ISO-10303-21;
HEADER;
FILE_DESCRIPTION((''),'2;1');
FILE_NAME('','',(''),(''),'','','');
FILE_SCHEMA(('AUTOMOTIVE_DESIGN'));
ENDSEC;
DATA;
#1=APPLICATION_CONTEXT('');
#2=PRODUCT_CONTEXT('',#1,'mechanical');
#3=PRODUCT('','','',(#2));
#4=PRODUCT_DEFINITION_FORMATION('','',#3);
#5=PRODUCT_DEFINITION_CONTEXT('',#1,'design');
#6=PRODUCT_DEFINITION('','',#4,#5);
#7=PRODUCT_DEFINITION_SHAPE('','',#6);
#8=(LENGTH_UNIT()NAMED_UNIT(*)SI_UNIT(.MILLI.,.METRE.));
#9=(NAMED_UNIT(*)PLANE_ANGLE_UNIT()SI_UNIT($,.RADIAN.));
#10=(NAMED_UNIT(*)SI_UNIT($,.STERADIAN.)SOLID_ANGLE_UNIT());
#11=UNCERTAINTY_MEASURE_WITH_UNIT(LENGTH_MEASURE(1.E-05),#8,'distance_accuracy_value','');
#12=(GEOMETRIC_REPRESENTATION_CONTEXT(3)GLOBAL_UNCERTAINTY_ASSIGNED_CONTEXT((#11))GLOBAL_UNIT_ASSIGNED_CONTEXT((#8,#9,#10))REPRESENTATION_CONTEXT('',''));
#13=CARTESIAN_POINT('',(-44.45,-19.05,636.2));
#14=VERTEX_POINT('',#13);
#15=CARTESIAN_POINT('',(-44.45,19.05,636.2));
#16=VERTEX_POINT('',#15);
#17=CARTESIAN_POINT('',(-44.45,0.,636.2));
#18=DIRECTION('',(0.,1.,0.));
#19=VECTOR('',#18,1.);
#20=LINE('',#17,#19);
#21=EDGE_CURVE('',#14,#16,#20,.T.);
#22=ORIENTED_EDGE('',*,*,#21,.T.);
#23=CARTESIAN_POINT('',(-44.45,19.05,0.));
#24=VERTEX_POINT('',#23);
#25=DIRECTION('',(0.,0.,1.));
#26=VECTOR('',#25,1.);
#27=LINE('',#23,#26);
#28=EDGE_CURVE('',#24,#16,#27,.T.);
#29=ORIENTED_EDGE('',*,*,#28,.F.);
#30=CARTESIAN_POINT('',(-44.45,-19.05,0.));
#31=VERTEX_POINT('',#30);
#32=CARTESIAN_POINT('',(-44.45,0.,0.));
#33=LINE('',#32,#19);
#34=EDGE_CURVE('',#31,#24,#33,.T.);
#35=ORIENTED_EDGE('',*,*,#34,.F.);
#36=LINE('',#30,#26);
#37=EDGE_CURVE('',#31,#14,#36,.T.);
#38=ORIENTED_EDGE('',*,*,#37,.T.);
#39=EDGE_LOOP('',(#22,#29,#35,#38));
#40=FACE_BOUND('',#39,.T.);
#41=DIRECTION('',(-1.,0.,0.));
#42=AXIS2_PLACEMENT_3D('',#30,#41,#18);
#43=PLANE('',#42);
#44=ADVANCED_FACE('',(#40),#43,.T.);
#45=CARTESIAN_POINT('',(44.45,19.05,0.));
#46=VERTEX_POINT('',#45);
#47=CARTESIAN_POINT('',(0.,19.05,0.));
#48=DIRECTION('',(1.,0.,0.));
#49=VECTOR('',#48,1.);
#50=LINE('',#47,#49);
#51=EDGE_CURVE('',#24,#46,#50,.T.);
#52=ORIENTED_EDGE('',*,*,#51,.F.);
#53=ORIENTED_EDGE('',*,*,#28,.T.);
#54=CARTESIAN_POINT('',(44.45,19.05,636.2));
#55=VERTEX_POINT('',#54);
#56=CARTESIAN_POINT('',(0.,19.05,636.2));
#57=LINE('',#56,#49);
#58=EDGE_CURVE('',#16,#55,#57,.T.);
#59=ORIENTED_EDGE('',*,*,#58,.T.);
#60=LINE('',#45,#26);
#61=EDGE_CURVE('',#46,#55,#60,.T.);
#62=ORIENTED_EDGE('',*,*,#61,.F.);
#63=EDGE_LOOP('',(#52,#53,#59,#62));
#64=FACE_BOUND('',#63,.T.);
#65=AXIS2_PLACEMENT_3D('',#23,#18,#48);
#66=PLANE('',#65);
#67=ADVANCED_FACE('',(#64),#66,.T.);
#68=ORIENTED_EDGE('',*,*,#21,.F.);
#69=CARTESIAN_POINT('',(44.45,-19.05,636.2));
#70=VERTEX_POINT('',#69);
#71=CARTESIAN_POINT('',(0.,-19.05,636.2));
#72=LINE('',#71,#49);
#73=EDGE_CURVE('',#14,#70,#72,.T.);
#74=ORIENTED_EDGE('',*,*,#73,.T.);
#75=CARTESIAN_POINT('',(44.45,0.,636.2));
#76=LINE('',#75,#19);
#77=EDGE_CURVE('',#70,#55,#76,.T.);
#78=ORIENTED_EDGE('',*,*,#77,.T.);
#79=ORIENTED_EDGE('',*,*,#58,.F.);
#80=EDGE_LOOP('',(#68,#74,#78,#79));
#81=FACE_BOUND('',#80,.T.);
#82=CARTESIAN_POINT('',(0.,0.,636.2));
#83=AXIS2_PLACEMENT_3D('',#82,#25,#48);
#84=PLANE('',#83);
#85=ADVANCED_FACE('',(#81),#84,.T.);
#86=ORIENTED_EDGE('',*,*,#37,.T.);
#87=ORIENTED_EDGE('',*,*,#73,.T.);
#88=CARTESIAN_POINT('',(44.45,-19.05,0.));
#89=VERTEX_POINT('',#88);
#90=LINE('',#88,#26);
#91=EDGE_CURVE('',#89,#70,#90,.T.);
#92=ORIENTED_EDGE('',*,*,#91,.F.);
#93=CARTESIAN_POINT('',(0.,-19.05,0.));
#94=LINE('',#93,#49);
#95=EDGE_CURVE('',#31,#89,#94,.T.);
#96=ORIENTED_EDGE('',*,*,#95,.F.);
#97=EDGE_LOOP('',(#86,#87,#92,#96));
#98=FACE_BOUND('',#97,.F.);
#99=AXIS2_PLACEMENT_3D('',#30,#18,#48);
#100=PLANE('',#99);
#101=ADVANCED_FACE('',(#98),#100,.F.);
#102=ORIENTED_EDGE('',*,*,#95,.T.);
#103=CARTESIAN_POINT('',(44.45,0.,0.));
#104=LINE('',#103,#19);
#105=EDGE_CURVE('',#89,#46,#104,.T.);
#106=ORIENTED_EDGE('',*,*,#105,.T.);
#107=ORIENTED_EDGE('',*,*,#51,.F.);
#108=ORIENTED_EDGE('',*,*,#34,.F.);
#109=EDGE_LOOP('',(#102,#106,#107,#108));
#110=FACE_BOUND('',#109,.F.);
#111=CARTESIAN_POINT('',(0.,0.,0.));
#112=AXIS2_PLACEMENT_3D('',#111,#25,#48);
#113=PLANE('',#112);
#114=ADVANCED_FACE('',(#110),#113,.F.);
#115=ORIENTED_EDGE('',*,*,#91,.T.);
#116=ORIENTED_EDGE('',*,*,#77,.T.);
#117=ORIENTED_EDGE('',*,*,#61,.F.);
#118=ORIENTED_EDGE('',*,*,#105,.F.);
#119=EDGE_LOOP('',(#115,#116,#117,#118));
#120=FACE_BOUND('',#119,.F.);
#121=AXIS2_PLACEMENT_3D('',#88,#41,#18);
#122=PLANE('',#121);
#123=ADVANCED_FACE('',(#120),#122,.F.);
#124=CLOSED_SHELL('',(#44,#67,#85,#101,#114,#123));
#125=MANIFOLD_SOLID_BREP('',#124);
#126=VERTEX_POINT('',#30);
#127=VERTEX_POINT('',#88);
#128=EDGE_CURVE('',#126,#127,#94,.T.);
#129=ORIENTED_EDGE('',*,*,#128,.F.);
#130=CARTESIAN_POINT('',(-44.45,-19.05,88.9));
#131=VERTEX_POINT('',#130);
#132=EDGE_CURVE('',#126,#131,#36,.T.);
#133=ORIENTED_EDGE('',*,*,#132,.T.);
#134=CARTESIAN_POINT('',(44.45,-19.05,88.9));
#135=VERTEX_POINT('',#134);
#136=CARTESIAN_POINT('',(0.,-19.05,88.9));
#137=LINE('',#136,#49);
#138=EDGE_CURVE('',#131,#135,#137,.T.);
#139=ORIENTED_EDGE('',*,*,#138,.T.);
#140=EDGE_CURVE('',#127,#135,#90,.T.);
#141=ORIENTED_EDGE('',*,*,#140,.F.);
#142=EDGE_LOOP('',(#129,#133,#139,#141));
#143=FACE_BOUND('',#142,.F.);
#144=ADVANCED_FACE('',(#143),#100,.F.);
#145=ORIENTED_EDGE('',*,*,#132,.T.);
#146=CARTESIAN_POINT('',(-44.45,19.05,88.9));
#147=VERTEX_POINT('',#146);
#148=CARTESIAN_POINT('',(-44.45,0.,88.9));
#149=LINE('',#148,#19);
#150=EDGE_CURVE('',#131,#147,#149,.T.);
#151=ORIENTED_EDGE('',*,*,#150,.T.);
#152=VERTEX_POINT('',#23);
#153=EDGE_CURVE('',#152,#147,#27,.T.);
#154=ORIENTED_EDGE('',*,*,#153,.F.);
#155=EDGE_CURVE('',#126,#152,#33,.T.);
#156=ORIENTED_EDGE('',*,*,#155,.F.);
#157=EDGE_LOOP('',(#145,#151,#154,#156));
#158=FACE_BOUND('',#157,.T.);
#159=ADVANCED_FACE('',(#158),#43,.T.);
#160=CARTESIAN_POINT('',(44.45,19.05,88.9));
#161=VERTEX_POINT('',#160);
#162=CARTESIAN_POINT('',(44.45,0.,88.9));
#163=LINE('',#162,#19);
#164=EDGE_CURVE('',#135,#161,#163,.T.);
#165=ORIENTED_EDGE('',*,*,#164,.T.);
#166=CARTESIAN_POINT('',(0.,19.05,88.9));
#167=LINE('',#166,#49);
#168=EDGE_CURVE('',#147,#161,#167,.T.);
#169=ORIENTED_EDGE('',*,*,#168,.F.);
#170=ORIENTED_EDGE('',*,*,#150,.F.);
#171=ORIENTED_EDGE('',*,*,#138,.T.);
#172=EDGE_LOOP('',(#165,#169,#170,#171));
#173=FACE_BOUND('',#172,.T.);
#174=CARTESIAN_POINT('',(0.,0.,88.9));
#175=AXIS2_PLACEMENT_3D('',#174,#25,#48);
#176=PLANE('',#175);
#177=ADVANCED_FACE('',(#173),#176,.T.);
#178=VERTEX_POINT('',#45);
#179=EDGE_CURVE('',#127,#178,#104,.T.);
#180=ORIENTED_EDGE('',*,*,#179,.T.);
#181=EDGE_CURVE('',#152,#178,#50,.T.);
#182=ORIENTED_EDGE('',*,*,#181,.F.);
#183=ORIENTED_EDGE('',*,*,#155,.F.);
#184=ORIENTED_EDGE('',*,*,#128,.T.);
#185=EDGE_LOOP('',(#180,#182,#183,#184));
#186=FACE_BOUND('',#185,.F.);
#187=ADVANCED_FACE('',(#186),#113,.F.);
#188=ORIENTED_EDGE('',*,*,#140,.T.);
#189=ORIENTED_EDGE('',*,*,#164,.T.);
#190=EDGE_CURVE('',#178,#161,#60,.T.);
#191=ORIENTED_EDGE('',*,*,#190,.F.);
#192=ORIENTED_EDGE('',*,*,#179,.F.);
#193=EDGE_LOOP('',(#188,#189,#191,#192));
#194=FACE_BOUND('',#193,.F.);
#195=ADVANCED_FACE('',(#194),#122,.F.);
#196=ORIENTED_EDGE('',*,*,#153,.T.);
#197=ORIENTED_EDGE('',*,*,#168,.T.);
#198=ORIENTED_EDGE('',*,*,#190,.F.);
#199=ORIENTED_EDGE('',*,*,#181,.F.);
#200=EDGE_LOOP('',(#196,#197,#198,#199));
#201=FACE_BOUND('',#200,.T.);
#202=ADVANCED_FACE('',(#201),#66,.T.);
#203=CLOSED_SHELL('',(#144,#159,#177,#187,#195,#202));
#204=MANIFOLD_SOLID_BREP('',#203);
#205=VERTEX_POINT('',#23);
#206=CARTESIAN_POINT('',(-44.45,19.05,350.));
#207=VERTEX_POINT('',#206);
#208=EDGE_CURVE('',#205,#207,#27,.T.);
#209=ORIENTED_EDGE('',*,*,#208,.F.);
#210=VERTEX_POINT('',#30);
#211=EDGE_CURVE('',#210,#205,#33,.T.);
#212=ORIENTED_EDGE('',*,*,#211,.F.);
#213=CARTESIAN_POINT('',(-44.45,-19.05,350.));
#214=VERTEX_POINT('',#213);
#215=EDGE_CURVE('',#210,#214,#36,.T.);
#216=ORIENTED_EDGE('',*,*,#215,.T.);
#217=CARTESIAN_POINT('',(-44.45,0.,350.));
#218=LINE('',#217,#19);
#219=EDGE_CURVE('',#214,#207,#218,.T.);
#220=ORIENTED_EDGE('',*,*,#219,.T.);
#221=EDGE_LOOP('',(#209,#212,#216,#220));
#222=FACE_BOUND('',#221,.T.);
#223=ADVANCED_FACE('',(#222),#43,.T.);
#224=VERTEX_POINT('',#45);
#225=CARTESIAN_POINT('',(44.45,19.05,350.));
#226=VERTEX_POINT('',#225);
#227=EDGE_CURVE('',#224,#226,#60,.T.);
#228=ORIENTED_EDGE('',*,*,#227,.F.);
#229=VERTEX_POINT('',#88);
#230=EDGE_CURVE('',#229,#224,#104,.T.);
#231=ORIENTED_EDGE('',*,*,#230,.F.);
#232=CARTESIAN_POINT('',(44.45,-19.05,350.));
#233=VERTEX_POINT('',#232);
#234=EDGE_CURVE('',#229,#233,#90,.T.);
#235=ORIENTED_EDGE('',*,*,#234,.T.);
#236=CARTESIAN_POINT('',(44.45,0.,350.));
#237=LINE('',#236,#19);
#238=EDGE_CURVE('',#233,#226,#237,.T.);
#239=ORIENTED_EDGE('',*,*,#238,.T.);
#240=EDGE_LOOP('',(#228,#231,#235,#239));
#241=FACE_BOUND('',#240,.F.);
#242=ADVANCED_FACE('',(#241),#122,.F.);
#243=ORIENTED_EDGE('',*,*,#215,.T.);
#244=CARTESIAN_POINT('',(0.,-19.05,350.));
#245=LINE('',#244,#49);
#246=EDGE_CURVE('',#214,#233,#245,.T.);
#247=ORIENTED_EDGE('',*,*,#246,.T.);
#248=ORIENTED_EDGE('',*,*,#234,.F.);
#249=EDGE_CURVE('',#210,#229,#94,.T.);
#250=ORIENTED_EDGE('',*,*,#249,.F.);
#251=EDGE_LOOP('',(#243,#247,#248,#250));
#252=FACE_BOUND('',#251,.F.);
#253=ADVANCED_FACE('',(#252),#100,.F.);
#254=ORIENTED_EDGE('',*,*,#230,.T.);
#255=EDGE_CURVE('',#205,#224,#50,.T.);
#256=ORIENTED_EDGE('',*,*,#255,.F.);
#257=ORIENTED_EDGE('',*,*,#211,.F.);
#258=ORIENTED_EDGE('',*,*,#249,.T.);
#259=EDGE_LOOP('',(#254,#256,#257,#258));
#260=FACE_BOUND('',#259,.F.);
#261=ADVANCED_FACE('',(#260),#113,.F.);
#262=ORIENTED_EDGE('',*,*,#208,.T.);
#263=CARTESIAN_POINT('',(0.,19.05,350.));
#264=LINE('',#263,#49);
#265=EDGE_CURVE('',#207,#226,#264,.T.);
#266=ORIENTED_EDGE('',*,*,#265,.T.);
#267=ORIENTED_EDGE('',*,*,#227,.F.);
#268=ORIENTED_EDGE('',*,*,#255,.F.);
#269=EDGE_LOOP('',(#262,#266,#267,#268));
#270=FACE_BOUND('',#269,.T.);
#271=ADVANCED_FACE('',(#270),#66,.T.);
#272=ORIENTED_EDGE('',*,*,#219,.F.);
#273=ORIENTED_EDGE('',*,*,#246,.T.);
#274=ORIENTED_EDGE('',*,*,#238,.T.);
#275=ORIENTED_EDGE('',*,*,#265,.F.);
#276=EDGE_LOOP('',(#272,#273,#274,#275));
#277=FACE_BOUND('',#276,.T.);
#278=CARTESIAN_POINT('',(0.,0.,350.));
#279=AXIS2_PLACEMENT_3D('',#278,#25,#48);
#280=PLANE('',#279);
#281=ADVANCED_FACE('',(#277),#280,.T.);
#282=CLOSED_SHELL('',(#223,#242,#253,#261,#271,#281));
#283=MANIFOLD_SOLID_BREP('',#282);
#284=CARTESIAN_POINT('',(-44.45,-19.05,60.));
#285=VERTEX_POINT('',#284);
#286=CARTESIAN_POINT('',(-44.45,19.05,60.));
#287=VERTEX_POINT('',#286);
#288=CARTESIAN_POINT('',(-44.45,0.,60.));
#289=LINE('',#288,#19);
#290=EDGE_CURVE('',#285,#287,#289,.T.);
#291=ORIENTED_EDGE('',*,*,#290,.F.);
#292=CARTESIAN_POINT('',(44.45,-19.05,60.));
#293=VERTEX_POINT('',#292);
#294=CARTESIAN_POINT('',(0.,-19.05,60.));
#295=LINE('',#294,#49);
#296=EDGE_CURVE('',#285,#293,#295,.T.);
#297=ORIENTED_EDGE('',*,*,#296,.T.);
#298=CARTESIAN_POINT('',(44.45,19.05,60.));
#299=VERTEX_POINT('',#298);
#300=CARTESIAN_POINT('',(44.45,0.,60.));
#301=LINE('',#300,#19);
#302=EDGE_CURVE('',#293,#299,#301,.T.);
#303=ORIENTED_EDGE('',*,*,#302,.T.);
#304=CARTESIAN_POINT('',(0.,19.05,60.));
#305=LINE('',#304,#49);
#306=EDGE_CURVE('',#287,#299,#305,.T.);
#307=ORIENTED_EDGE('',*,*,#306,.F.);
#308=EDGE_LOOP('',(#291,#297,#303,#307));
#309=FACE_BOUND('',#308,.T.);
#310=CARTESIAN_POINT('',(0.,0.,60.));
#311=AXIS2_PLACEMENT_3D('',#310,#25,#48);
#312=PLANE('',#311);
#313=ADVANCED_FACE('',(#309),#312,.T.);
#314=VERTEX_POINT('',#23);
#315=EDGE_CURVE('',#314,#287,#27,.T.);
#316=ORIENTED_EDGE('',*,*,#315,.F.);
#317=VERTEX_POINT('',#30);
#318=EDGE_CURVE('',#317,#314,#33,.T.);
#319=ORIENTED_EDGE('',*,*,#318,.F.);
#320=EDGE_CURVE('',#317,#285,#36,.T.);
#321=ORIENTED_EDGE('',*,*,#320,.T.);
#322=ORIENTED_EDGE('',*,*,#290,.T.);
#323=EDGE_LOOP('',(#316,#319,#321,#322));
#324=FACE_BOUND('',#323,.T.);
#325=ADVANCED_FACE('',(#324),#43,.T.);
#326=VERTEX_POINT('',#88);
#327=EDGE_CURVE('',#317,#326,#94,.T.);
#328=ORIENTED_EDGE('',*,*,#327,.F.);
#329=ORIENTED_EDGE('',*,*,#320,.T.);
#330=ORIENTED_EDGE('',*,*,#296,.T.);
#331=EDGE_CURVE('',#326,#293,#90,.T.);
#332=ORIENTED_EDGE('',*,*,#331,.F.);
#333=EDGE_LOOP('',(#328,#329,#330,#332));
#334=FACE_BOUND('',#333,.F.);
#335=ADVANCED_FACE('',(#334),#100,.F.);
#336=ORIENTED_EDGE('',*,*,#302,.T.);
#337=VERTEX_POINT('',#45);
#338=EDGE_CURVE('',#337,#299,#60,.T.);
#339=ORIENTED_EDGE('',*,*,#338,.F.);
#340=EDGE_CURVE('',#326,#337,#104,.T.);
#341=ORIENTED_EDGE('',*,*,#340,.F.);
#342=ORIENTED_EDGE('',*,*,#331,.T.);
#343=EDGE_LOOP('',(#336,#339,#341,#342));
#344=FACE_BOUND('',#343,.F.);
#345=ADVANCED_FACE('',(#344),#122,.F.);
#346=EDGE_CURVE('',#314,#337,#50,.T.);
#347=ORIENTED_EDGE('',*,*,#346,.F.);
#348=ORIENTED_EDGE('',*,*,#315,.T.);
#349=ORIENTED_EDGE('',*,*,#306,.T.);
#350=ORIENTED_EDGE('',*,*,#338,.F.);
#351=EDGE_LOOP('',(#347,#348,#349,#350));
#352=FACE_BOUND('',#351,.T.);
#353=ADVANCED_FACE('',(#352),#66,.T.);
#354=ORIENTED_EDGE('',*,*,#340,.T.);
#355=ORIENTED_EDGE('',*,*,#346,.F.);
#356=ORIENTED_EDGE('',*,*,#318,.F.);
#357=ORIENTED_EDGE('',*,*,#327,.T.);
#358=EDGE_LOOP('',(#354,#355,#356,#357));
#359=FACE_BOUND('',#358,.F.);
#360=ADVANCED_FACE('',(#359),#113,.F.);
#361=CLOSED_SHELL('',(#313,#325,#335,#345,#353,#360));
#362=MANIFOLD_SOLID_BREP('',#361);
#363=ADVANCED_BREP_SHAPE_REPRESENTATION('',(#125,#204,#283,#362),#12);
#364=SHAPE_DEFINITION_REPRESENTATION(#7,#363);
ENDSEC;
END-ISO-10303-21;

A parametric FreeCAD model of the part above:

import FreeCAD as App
import Part
import Sketcher

V = App.Vector

doc = App.newDocument("Part")
body = doc.addObject("PartDesign::Body", "Body")

sketch1 = body.newObject("Sketcher::SketchObject", "Sketch")
sketch1.AttachmentSupport = (doc.getObject("XY_Plane"), [""])
sketch1.MapMode = "FlatFace"
sketch1.addGeometry(Part.LineSegment(V(-44.45, 19.05, 0), V(-44.45, -19.05, 0)), False)
sketch1.addGeometry(Part.LineSegment(V(-44.45, -19.05, 0), V(44.45, -19.05, 0)), False)
sketch1.addGeometry(Part.LineSegment(V(44.45, -19.05, 0), V(44.45, 19.05, 0)), False)
sketch1.addGeometry(Part.LineSegment(V(44.45, 19.05, 0), V(-44.45, 19.05, 0)), False)
sketch1.addConstraint(Sketcher.Constraint("Coincident", 0, 2, 1, 1))
sketch1.addConstraint(Sketcher.Constraint("Coincident", 1, 2, 2, 1))
sketch1.addConstraint(Sketcher.Constraint("Coincident", 2, 2, 3, 1))
sketch1.addConstraint(Sketcher.Constraint("Coincident", 3, 2, 0, 1))
sketch1.addConstraint(Sketcher.Constraint("Vertical", 0))
sketch1.addConstraint(Sketcher.Constraint("Horizontal", 1))
sketch1.addConstraint(Sketcher.Constraint("Vertical", 2))
sketch1.addConstraint(Sketcher.Constraint("Horizontal", 3))
sketch1.addConstraint(Sketcher.Constraint("Symmetric", 0, 2, 2, 2, -1, 1))
sketch1.addConstraint(Sketcher.Constraint("DistanceX", 1, 1, 1, 2, 88.9))
sketch1.addConstraint(Sketcher.Constraint("DistanceY", 0, 2, 0, 1, 38.1))
pad1 = body.newObject("PartDesign::Pad", "Pad")
pad1.Profile = sketch1
pad1.Length = 350
body2 = doc.addObject("PartDesign::Body", "Body001")

sketch2 = body2.newObject("Sketcher::SketchObject", "Sketch001")
sketch2.AttachmentSupport = (doc.getObject("XY_Plane001"), [""])
sketch2.MapMode = "FlatFace"
sketch2.addGeometry(Part.LineSegment(V(-44.45, 19.05, 0), V(-44.45, -19.05, 0)), False)
sketch2.addGeometry(Part.LineSegment(V(-44.45, -19.05, 0), V(44.45, -19.05, 0)), False)
sketch2.addGeometry(Part.LineSegment(V(44.45, -19.05, 0), V(44.45, 19.05, 0)), False)
sketch2.addGeometry(Part.LineSegment(V(44.45, 19.05, 0), V(-44.45, 19.05, 0)), False)
sketch2.addConstraint(Sketcher.Constraint("Coincident", 0, 2, 1, 1))
sketch2.addConstraint(Sketcher.Constraint("Coincident", 1, 2, 2, 1))
sketch2.addConstraint(Sketcher.Constraint("Coincident", 2, 2, 3, 1))
sketch2.addConstraint(Sketcher.Constraint("Coincident", 3, 2, 0, 1))
sketch2.addConstraint(Sketcher.Constraint("Vertical", 0))
sketch2.addConstraint(Sketcher.Constraint("Horizontal", 1))
sketch2.addConstraint(Sketcher.Constraint("Vertical", 2))
sketch2.addConstraint(Sketcher.Constraint("Horizontal", 3))
sketch2.addConstraint(Sketcher.Constraint("Symmetric", 0, 2, 2, 2, -1, 1))
sketch2.addConstraint(Sketcher.Constraint("DistanceX", 1, 1, 1, 2, 88.9))
sketch2.addConstraint(Sketcher.Constraint("DistanceY", 0, 2, 0, 1, 38.1))
pad2 = body2.newObject("PartDesign::Pad", "Pad001")
pad2.Profile = sketch2
pad2.Length = 636.2
body3 = doc.addObject("PartDesign::Body", "Body002")

sketch3 = body3.newObject("Sketcher::SketchObject", "Sketch002")
sketch3.AttachmentSupport = (doc.getObject("XY_Plane002"), [""])
sketch3.MapMode = "FlatFace"
sketch3.addGeometry(Part.LineSegment(V(-44.45, 19.05, 0), V(-44.45, -19.05, 0)), False)
sketch3.addGeometry(Part.LineSegment(V(-44.45, -19.05, 0), V(44.45, -19.05, 0)), False)
sketch3.addGeometry(Part.LineSegment(V(44.45, -19.05, 0), V(44.45, 19.05, 0)), False)
sketch3.addGeometry(Part.LineSegment(V(44.45, 19.05, 0), V(-44.45, 19.05, 0)), False)
sketch3.addConstraint(Sketcher.Constraint("Coincident", 0, 2, 1, 1))
sketch3.addConstraint(Sketcher.Constraint("Coincident", 1, 2, 2, 1))
sketch3.addConstraint(Sketcher.Constraint("Coincident", 2, 2, 3, 1))
sketch3.addConstraint(Sketcher.Constraint("Coincident", 3, 2, 0, 1))
sketch3.addConstraint(Sketcher.Constraint("Vertical", 0))
sketch3.addConstraint(Sketcher.Constraint("Horizontal", 1))
sketch3.addConstraint(Sketcher.Constraint("Vertical", 2))
sketch3.addConstraint(Sketcher.Constraint("Horizontal", 3))
sketch3.addConstraint(Sketcher.Constraint("Symmetric", 0, 2, 2, 2, -1, 1))
sketch3.addConstraint(Sketcher.Constraint("DistanceX", 1, 1, 1, 2, 88.9))
sketch3.addConstraint(Sketcher.Constraint("DistanceY", 0, 2, 0, 1, 38.1))
pad3 = body3.newObject("PartDesign::Pad", "Pad002")
pad3.Profile = sketch3
pad3.Length = 88.9
body4 = doc.addObject("PartDesign::Body", "Body003")

sketch4 = body4.newObject("Sketcher::SketchObject", "Sketch003")
sketch4.AttachmentSupport = (doc.getObject("XY_Plane003"), [""])
sketch4.MapMode = "FlatFace"
sketch4.addGeometry(Part.LineSegment(V(-44.45, 19.05, 0), V(-44.45, -19.05, 0)), False)
sketch4.addGeometry(Part.LineSegment(V(-44.45, -19.05, 0), V(44.45, -19.05, 0)), False)
sketch4.addGeometry(Part.LineSegment(V(44.45, -19.05, 0), V(44.45, 19.05, 0)), False)
sketch4.addGeometry(Part.LineSegment(V(44.45, 19.05, 0), V(-44.45, 19.05, 0)), False)
sketch4.addConstraint(Sketcher.Constraint("Coincident", 0, 2, 1, 1))
sketch4.addConstraint(Sketcher.Constraint("Coincident", 1, 2, 2, 1))
sketch4.addConstraint(Sketcher.Constraint("Coincident", 2, 2, 3, 1))
sketch4.addConstraint(Sketcher.Constraint("Coincident", 3, 2, 0, 1))
sketch4.addConstraint(Sketcher.Constraint("Vertical", 0))
sketch4.addConstraint(Sketcher.Constraint("Horizontal", 1))
sketch4.addConstraint(Sketcher.Constraint("Vertical", 2))
sketch4.addConstraint(Sketcher.Constraint("Horizontal", 3))
sketch4.addConstraint(Sketcher.Constraint("Symmetric", 0, 2, 2, 2, -1, 1))
sketch4.addConstraint(Sketcher.Constraint("DistanceX", 1, 1, 1, 2, 88.9))
sketch4.addConstraint(Sketcher.Constraint("DistanceY", 0, 2, 0, 1, 38.1))
pad4 = body4.newObject("PartDesign::Pad", "Pad003")
pad4.Profile = sketch4
pad4.Length = 60

doc.recompute()
